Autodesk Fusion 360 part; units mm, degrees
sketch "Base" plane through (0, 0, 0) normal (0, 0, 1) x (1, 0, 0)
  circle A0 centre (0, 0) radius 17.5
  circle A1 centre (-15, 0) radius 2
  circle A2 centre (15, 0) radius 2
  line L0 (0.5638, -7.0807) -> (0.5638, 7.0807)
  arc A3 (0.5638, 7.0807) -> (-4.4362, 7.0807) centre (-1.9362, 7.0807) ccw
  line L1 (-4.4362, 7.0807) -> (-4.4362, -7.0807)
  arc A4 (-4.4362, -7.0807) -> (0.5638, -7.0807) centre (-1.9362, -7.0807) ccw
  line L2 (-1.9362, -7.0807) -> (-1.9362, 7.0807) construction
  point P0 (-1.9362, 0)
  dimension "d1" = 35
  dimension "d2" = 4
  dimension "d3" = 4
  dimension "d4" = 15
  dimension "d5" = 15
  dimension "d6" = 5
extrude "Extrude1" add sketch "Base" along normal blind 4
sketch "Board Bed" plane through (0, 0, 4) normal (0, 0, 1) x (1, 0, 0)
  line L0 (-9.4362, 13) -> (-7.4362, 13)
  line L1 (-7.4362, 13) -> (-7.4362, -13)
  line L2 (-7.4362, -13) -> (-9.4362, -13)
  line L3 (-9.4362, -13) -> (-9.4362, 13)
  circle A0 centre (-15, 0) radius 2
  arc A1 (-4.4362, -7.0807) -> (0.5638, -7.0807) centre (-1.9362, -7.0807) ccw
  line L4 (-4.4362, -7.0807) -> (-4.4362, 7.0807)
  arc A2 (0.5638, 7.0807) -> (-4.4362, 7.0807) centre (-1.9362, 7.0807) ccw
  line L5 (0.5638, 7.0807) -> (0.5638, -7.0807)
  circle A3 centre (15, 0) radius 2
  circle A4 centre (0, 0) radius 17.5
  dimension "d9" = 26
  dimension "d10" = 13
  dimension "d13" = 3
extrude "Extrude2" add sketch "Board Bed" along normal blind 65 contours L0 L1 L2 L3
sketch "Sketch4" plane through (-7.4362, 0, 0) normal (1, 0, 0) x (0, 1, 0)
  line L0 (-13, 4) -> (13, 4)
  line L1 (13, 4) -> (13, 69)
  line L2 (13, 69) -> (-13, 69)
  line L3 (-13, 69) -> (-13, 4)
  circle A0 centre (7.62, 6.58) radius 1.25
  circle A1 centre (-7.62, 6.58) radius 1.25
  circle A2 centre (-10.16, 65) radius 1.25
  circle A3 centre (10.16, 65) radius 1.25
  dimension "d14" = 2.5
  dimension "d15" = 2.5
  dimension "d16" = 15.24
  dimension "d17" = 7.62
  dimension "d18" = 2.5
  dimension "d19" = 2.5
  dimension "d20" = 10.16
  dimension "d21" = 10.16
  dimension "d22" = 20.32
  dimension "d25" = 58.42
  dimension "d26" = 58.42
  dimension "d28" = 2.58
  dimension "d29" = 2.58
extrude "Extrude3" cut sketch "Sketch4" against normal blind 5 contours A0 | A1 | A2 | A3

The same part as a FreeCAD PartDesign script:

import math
import FreeCAD as App
import Part
import Sketcher
Q = App.Units.Quantity


def add_polygon(sketch, points):
    """Adds a closed chain of lines whose ends are joined by coincident constraints."""
    first, n = sketch.GeometryCount, len(points)
    for a, b in zip(points, points[1:] + points[:1]):
        sketch.addGeometry(Part.LineSegment(App.Vector(*a, 0), App.Vector(*b, 0)), False)
    for i in range(n):
        sketch.addConstraint(Sketcher.Constraint("Coincident", first + i, 2, first + (i + 1) % n, 1))

doc = App.newDocument("Part")
body = doc.addObject("PartDesign::Body", "Body")

sketch1 = body.newObject("Sketcher::SketchObject", "Sketch")
sketch1.AttachmentSupport = (doc.getObject("XY_Plane"), [""])
sketch1.MapMode = "FlatFace"
sketch1.addGeometry([
    Part.Circle(App.Vector(0, 0, 0), App.Vector(0, 0, 1), 17.5),
    Part.Circle(App.Vector(-15, 0, 0), App.Vector(0, 0, 1), 2),
    Part.LineSegment(App.Vector(0.5638, 7.0807, 0), App.Vector(0.5638, -7.0807, 0)),
    Part.ArcOfCircle(Part.Circle(App.Vector(-1.9362, -7.0807, 0), App.Vector(0, 0, 1), 2.5), math.radians(180), math.radians(360)),
    Part.LineSegment(App.Vector(-4.4362, -7.0807, 0), App.Vector(-4.4362, 7.0807, 0)),
    Part.ArcOfCircle(Part.Circle(App.Vector(-1.9362, 7.0807, 0), App.Vector(0, 0, 1), 2.5), math.radians(0), math.radians(180)),
    Part.Circle(App.Vector(15, 0, 0), App.Vector(0, 0, 1), 2),
], False)
sketch1.addConstraint([
    Sketcher.Constraint("Tangent", 2, 2, 3, 2),
    Sketcher.Constraint("Tangent", 3, 1, 4, 1),
    Sketcher.Constraint("Tangent", 4, 2, 5, 2),
    Sketcher.Constraint("Tangent", 5, 1, 2, 1),
    Sketcher.Constraint("Vertical", 2),
    Sketcher.Constraint("Vertical", 4),
    Sketcher.Constraint("Coincident", 0, 3, -1, 1),
    Sketcher.Constraint("Equal", 1, 6),
    Sketcher.Constraint("Symmetric", 1, 3, 6, 3, -1, 1),
    Sketcher.Constraint("PointOnObject", 1, 3, -1),
    Sketcher.Constraint("Diameter", 0, Q("35 mm")),
    Sketcher.Constraint("Diameter", 1, Q("4 mm")),
    Sketcher.Constraint("Radius", 3, Q("2.5 mm")),
    Sketcher.Constraint("DistanceX", 1, 3, -1, 1, Q("15 mm")),
    Sketcher.Constraint("DistanceY", 2, 2, 2, 1, Q("14.1614 mm")),
    Sketcher.Constraint("DistanceX", 3, 3, -1, 1, Q("1.9362 mm")),
    Sketcher.Constraint("DistanceY", 3, 3, -1, 1, Q("7.0807 mm")),
])
pad1 = body.newObject("PartDesign::Pad", "Pad")
pad1.Profile = sketch1
pad1.Length = 4

sketch2 = body.newObject("Sketcher::SketchObject", "Sketch001")
sketch2.AttachmentSupport = (doc.getObject("XY_Plane"), [""])
sketch2.MapMode = "FlatFace"
sketch2.AttachmentOffset = App.Placement(App.Vector(0, 0, 4), App.Rotation())
add_polygon(sketch2, [(-7.4362, 13), (-9.4362, 13), (-9.4362, -13), (-7.4362, -13)])
sketch2.addConstraint([
    Sketcher.Constraint("Horizontal", 0),
    Sketcher.Constraint("Vertical", 1),
    Sketcher.Constraint("Horizontal", 2),
    Sketcher.Constraint("Vertical", 3),
    Sketcher.Constraint("DistanceY", 1, 2, 1, 1, Q("26 mm")),
    Sketcher.Constraint("DistanceY", -1, 1, 0, 2, Q("13 mm")),
    Sketcher.Constraint("DistanceX", 0, 2, 0, 1, Q("2 mm")),
    Sketcher.Constraint("DistanceX", 0, 2, -1, 1, Q("9.4362 mm")),
])
pad2 = body.newObject("PartDesign::Pad", "Pad001")
pad2.Profile = sketch2
pad2.Length = 65

sketch3 = body.newObject("Sketcher::SketchObject", "Sketch002")
sketch3.AttachmentSupport = (doc.getObject("YZ_Plane"), [""])
sketch3.MapMode = "FlatFace"
sketch3.AttachmentOffset = App.Placement(App.Vector(0, 0, -7.4362), App.Rotation())
sketch3.addGeometry([
    Part.Circle(App.Vector(7.62, 6.58, 0), App.Vector(0, 0, 1), 1.25),
    Part.Circle(App.Vector(-7.62, 6.58, 0), App.Vector(0, 0, 1), 1.25),
    Part.Circle(App.Vector(-10.16, 65, 0), App.Vector(0, 0, 1), 1.25),
    Part.Circle(App.Vector(10.16, 65, 0), App.Vector(0, 0, 1), 1.25),
], False)
sketch3.addConstraint([
    Sketcher.Constraint("Equal", 0, 1),
    Sketcher.Constraint("Equal", 1, 2),
    Sketcher.Constraint("Equal", 2, 3),
    Sketcher.Constraint("Symmetric", 0, 3, 1, 3, -2),
    Sketcher.Constraint("Symmetric", 2, 3, 3, 3, -2),
    Sketcher.Constraint("Diameter", 0, Q("2.5 mm")),
    Sketcher.Constraint("DistanceX", -1, 1, 0, 3, Q("7.62 mm")),
    Sketcher.Constraint("DistanceX", 2, 3, -1, 1, Q("10.16 mm")),
    Sketcher.Constraint("DistanceY", 1, 3, 2, 3, Q("58.42 mm")),
    Sketcher.Constraint("DistanceY", -1, 1, 2, 3, Q("65 mm")),
])
pocket1 = body.newObject("PartDesign::Pocket", "Pocket")
pocket1.Profile = sketch3
pocket1.Length = 5

doc.recompute()
